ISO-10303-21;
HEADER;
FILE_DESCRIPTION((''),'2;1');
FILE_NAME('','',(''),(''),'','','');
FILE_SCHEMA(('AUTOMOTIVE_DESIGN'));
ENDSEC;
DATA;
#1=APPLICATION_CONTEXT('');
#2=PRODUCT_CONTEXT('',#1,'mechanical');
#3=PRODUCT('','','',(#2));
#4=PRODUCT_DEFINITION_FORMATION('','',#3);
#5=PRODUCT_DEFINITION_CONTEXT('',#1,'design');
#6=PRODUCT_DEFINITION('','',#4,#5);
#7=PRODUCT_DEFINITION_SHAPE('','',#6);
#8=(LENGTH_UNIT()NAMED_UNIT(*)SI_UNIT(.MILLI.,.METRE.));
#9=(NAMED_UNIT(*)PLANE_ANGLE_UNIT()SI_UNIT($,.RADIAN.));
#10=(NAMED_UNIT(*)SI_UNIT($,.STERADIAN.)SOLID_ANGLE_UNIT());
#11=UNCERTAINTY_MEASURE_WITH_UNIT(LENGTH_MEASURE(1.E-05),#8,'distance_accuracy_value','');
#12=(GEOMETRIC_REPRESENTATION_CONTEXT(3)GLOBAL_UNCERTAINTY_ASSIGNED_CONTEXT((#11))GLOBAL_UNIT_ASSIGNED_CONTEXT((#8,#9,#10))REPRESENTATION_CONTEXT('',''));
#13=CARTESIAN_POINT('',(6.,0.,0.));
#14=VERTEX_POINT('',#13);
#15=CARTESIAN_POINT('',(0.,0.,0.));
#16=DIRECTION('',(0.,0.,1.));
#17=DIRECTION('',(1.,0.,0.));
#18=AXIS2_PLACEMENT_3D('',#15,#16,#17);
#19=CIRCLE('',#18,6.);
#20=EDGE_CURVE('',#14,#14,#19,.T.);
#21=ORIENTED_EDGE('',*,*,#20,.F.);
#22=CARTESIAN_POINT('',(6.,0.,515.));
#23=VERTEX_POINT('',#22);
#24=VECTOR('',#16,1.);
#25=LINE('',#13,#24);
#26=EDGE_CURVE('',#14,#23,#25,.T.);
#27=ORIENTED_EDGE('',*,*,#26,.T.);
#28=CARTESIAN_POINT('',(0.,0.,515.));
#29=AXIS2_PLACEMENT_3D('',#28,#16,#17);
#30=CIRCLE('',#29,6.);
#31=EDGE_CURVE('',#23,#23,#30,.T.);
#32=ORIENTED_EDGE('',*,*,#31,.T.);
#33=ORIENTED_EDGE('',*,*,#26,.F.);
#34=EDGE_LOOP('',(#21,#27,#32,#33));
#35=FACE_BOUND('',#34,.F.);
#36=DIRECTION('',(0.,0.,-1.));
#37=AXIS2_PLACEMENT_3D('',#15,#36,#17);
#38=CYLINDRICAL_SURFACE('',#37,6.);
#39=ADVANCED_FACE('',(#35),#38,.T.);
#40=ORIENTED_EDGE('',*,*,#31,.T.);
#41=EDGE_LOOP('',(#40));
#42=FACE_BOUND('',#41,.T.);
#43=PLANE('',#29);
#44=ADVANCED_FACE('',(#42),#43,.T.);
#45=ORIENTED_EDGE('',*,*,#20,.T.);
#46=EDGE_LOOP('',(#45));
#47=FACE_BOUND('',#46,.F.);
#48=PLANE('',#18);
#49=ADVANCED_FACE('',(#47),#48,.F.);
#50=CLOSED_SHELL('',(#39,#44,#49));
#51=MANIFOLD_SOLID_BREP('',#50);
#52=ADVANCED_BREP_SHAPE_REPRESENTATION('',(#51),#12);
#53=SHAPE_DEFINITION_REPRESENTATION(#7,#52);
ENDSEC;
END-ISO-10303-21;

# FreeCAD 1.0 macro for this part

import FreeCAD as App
import Part
import Sketcher

V = App.Vector
Q = App.Units.Quantity

doc = App.newDocument("Part")
body = doc.addObject("PartDesign::Body", "Body")

sketch1 = body.newObject("Sketcher::SketchObject", "Sketch")
sketch1.AttachmentSupport = (doc.getObject("XY_Plane"), [""])
sketch1.MapMode = "FlatFace"
sketch1.addGeometry(Part.Circle(V(0, 0, 0), V(0, 0, 1), 6), False)
sketch1.addConstraint([
    Sketcher.Constraint("Coincident", 0, 3, -1, 1),
    Sketcher.Constraint("Diameter", 0, Q("12 mm")),
])
pad1 = body.newObject("PartDesign::Pad", "Pad")
pad1.Profile = sketch1
pad1.Length = 515

doc.recompute()
